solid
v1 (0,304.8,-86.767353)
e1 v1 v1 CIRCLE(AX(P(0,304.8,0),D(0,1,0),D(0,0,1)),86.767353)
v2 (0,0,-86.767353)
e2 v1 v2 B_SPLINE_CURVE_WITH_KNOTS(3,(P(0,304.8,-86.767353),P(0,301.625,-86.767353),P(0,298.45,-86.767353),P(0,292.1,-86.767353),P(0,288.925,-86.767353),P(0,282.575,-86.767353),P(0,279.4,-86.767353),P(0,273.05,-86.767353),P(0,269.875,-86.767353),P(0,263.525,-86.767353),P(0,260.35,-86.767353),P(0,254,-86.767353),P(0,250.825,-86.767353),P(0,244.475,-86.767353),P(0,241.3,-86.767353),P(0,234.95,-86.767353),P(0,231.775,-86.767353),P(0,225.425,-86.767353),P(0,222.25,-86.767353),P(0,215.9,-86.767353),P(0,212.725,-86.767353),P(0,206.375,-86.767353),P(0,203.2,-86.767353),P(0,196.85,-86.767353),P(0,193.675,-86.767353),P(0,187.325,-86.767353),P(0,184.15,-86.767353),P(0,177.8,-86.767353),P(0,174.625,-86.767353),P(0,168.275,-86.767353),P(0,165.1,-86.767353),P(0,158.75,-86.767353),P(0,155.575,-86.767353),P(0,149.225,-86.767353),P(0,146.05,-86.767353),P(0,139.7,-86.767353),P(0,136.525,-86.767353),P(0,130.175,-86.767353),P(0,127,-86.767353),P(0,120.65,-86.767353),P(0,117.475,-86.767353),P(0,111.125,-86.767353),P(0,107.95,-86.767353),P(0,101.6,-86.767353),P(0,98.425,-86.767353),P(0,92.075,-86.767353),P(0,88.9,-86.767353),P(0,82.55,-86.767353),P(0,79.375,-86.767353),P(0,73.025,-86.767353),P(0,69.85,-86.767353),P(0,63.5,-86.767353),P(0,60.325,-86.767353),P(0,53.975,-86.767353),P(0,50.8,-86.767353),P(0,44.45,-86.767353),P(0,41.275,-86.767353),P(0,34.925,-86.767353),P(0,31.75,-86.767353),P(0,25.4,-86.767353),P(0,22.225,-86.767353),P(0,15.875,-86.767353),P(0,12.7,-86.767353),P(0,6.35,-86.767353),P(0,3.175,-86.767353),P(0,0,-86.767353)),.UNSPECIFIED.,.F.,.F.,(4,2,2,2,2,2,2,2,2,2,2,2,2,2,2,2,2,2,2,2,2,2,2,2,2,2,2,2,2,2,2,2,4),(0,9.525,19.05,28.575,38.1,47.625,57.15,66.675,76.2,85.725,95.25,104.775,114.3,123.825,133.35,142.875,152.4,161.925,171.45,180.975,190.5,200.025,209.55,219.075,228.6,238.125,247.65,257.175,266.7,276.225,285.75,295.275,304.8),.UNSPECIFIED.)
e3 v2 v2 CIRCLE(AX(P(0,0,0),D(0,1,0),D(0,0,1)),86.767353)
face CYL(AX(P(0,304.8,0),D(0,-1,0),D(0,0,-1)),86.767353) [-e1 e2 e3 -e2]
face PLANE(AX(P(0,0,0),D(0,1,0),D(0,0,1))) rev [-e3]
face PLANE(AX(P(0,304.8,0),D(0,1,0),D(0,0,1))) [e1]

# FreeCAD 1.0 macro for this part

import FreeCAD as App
import Part
import Sketcher
from FreeCAD import Vector
Q = App.Units.Quantity

doc = App.newDocument("Part")
body = doc.addObject("PartDesign::Body", "Body")

# Sketch on XZ plane
sketch1 = body.newObject("Sketcher::SketchObject", "Sketch")
sketch1.AttachmentSupport = (doc.getObject("XZ_Plane"), [""])
sketch1.MapMode = "FlatFace"
sketch1.addGeometry(Part.Circle(Vector(0, 0, 0), Vector(0, 0, 1), 87), False)
sketch1.addConstraint(Sketcher.Constraint("Coincident", 0, 3, -1, 1))
sketch1.addConstraint(Sketcher.Constraint("Diameter", 0, 173.534706))
pad1 = body.newObject("PartDesign::Pad", "Pad")
pad1.Profile = sketch1
pad1.Length = Q("12 in")
pad1.Reversed = True

doc.recompute()
